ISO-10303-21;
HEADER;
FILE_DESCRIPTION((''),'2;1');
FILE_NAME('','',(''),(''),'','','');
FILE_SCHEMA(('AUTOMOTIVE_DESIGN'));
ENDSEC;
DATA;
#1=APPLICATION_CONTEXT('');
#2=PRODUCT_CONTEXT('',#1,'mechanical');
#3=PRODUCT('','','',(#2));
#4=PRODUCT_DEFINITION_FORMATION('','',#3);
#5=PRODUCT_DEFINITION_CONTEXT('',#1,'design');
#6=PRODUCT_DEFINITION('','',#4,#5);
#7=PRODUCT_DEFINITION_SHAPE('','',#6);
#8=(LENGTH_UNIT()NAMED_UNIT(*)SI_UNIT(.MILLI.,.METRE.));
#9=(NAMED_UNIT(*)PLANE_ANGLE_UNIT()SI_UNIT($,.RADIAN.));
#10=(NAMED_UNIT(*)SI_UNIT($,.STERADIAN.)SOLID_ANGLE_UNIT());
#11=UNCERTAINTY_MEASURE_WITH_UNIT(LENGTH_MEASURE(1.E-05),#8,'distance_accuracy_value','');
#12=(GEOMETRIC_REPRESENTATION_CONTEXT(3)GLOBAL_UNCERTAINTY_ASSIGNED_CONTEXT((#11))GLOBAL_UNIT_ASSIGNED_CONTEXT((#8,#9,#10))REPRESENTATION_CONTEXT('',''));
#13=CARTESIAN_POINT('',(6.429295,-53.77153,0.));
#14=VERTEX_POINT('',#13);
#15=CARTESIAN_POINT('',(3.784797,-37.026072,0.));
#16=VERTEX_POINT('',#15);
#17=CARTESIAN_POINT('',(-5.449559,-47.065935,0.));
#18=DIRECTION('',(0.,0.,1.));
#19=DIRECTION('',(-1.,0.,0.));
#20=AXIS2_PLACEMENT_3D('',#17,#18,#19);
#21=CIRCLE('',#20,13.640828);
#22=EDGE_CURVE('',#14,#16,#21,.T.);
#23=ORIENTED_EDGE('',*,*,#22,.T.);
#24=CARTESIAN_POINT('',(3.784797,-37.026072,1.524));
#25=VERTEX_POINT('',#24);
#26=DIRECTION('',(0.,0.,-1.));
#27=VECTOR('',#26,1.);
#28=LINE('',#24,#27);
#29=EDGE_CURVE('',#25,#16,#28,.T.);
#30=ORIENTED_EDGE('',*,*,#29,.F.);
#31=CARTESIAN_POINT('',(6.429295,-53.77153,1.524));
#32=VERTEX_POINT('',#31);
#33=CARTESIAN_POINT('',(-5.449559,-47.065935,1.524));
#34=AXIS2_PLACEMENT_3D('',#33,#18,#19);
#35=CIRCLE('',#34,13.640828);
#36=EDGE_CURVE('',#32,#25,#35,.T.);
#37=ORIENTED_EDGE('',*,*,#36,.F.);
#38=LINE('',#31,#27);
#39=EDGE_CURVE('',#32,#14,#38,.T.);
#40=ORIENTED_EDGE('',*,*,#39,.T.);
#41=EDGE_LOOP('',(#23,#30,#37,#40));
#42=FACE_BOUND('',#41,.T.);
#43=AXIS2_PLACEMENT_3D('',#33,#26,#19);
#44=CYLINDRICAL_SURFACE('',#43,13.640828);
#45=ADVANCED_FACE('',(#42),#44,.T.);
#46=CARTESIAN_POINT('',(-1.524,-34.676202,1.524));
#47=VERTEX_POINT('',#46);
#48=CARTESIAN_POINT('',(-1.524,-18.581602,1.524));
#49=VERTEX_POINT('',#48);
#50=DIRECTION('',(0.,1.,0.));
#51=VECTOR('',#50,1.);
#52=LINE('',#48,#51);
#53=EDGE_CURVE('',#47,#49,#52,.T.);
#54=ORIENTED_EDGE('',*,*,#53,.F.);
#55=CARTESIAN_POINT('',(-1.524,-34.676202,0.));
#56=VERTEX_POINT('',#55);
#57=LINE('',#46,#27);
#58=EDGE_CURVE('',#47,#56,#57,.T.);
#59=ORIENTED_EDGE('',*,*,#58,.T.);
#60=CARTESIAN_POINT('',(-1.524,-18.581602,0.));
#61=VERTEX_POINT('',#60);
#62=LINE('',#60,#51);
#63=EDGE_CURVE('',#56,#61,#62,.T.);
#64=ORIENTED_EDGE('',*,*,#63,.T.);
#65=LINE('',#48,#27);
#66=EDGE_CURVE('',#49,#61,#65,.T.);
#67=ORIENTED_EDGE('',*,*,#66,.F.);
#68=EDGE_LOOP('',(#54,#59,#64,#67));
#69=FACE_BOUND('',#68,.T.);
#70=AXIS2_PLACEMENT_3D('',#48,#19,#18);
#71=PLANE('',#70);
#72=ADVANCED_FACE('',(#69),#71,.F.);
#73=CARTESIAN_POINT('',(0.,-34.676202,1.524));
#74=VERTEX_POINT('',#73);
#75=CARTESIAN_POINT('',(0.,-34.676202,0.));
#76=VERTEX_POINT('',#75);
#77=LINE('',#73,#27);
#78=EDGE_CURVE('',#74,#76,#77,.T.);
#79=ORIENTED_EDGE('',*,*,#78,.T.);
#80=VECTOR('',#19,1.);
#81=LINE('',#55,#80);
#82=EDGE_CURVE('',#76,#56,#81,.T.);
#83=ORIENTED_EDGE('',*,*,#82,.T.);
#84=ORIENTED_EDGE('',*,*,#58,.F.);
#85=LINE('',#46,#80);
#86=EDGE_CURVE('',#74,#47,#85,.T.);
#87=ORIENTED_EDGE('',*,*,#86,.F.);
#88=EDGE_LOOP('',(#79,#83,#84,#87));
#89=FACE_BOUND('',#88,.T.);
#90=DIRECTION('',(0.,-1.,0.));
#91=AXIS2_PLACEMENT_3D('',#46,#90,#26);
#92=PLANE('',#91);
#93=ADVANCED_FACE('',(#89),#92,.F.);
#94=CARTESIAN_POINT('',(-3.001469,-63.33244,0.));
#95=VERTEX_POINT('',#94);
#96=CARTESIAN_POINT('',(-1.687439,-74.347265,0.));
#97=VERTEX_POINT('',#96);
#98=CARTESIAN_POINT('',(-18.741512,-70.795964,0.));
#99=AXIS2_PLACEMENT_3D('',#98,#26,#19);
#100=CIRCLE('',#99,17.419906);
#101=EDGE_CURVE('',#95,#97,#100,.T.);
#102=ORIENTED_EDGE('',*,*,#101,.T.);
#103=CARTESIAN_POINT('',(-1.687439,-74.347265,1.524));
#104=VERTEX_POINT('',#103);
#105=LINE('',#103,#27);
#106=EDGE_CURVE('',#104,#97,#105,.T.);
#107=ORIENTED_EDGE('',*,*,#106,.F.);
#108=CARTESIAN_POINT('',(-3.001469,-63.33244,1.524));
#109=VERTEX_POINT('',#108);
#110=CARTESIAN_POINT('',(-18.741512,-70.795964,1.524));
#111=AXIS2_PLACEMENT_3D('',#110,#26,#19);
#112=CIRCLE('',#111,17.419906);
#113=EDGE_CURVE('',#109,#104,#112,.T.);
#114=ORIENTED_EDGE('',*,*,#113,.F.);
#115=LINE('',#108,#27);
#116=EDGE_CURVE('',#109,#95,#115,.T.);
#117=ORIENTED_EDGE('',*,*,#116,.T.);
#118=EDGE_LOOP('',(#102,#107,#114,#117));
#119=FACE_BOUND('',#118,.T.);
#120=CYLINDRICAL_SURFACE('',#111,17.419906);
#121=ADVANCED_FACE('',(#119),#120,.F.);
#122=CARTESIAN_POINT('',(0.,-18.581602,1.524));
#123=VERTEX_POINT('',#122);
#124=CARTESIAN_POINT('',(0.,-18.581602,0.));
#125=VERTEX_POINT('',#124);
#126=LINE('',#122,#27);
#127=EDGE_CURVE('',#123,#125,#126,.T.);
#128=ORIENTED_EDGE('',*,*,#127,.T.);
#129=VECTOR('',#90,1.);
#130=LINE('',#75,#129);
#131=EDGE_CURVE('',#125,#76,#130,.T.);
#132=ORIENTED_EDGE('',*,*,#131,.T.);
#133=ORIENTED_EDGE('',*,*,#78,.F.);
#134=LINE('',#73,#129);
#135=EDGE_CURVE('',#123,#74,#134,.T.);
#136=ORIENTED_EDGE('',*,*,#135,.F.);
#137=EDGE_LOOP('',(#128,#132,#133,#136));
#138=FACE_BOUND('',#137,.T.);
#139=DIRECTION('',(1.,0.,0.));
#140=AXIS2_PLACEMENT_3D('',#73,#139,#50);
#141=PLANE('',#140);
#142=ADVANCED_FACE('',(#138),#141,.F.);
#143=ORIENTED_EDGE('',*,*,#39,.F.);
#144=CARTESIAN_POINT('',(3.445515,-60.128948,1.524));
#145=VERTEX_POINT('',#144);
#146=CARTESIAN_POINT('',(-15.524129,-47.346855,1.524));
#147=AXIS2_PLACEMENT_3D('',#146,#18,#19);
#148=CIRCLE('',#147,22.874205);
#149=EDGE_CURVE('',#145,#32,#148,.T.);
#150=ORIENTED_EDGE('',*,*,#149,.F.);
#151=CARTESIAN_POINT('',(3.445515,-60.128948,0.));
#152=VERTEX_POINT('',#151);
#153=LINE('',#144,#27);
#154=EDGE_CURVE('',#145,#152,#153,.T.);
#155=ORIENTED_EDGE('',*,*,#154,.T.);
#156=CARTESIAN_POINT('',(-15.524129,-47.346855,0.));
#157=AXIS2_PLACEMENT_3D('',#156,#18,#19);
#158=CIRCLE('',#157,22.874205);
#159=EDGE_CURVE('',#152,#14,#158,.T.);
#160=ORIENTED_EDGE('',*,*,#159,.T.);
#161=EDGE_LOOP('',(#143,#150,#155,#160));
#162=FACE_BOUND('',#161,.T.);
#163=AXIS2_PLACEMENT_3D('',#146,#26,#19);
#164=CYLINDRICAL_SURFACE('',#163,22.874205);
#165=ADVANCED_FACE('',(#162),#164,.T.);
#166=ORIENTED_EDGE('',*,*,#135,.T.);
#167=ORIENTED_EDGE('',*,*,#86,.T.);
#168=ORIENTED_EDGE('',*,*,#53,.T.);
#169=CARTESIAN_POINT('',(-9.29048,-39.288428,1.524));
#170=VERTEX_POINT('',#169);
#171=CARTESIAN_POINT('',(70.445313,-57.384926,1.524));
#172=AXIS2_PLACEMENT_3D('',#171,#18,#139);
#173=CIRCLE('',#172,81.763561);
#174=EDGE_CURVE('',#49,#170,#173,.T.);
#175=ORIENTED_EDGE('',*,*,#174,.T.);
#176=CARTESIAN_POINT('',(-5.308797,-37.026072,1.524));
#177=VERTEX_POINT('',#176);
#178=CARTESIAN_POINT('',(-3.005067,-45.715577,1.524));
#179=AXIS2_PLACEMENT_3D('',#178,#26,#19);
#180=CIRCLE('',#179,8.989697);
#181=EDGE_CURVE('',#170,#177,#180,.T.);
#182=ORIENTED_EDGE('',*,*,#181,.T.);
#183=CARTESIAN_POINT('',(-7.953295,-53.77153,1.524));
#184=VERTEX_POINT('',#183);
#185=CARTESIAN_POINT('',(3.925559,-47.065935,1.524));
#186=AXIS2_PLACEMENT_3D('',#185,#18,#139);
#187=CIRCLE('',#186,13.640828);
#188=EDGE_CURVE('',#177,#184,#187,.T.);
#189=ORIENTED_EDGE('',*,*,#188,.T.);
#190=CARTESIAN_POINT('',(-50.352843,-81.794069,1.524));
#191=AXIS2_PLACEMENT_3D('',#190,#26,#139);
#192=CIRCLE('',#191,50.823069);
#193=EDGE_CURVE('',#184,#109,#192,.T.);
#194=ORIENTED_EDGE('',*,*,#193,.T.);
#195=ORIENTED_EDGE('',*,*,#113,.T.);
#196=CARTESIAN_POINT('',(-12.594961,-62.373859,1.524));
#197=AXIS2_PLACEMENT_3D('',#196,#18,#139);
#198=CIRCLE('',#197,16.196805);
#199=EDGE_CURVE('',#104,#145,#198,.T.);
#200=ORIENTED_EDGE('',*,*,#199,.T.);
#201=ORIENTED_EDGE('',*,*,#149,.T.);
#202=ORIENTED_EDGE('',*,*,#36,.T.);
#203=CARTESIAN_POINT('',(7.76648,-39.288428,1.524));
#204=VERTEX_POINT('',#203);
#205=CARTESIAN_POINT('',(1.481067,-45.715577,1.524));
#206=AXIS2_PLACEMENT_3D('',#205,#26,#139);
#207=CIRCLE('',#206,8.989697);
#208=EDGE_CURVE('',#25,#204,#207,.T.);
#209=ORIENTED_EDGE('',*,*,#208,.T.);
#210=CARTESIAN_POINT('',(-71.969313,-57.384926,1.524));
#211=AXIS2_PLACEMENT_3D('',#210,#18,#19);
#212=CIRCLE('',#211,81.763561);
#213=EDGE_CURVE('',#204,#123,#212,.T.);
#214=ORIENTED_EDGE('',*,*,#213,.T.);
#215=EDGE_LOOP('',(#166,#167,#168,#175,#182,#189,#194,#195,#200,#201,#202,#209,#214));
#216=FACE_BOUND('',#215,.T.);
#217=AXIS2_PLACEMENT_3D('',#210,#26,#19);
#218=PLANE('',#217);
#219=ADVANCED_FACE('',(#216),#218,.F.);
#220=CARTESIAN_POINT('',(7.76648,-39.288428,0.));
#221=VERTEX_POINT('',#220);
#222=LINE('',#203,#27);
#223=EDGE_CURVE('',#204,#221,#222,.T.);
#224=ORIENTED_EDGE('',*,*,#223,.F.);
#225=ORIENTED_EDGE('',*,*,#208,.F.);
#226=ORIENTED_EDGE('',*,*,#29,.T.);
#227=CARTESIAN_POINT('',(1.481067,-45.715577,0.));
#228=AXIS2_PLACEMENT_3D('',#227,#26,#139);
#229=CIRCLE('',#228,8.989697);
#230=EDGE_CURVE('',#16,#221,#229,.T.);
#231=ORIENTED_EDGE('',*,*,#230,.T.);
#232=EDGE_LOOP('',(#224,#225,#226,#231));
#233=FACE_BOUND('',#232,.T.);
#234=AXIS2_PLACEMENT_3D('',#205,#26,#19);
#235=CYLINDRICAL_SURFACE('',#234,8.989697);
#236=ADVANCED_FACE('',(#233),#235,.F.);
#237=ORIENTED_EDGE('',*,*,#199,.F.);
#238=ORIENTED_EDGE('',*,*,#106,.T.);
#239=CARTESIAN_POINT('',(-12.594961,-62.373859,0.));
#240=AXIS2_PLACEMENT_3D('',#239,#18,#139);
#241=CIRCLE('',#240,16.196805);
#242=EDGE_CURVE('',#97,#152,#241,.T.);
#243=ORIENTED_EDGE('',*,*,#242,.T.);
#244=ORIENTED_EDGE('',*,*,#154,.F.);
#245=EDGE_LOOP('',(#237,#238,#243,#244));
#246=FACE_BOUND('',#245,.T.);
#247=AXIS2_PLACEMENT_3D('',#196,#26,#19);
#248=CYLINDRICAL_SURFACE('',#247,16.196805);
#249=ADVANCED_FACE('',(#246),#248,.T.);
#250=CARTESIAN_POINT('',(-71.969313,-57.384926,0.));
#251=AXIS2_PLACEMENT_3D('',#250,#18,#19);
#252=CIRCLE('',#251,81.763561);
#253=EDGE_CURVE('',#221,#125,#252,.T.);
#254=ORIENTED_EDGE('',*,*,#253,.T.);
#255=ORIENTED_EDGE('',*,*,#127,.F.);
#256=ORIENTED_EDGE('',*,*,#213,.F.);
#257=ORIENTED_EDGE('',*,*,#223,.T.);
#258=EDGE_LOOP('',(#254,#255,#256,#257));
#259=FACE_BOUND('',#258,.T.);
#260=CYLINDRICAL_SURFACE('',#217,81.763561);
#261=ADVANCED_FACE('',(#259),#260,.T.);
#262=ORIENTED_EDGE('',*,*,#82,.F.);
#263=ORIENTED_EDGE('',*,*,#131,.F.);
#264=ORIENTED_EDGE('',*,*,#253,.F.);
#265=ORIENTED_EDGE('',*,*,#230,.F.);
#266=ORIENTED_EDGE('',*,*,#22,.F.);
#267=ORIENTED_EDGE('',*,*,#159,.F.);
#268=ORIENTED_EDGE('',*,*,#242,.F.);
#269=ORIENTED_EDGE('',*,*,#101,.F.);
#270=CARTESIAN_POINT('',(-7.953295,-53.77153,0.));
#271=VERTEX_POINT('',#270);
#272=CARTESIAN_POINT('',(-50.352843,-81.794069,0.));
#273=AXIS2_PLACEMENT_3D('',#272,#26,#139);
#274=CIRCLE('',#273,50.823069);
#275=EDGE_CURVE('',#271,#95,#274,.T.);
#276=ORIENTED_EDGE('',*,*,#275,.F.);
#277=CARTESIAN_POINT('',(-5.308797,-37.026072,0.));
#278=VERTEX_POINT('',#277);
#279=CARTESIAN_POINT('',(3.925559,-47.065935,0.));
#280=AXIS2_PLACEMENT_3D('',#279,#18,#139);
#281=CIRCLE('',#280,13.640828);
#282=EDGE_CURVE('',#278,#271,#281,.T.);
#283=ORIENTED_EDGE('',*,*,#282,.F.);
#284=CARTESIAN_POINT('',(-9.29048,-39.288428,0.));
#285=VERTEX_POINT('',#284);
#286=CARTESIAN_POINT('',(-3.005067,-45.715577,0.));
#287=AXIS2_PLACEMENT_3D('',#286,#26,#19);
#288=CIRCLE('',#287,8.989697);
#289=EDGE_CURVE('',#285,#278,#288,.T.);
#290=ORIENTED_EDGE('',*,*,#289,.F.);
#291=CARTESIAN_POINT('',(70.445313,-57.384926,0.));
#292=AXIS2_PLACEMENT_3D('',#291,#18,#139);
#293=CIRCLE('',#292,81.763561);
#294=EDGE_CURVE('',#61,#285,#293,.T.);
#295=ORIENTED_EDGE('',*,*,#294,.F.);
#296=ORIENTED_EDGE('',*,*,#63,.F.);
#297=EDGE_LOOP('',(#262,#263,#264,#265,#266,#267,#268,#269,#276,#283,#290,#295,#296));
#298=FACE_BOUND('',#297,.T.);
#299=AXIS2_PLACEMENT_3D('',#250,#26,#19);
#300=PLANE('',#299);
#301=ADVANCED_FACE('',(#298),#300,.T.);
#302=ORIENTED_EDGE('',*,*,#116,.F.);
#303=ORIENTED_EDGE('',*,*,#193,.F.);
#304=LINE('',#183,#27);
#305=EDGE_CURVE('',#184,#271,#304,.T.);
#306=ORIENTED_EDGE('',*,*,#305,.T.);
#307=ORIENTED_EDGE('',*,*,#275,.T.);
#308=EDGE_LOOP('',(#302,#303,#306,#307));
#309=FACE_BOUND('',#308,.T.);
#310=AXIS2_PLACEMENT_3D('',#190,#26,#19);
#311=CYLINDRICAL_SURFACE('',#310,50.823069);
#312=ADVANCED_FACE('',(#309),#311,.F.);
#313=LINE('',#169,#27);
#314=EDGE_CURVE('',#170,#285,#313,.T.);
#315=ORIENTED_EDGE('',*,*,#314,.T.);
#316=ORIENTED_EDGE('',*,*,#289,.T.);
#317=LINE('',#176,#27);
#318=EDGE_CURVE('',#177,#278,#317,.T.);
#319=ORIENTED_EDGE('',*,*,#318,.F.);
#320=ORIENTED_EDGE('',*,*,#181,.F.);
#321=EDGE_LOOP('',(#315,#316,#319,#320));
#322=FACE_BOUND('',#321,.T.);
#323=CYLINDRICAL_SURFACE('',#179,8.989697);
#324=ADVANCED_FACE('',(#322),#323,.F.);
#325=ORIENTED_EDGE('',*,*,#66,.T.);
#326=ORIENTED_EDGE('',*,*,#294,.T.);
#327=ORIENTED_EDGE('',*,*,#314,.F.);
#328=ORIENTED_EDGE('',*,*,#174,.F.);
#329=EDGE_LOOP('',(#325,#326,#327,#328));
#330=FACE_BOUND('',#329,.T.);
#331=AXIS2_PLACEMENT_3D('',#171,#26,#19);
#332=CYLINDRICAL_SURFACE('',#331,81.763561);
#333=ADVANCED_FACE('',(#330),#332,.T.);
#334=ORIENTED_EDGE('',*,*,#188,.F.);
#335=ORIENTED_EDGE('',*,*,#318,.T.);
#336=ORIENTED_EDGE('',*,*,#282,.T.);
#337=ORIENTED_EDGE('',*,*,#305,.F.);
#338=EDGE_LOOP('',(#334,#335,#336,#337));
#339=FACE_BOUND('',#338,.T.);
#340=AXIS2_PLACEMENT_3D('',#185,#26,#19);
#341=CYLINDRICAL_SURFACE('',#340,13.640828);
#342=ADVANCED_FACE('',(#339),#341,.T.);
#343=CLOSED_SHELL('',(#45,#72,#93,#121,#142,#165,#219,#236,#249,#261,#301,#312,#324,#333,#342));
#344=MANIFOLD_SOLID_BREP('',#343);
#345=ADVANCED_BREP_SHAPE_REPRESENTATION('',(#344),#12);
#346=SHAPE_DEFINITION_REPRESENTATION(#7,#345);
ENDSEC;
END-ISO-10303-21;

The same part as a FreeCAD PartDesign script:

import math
import FreeCAD as App
import Part
import Sketcher
from FreeCAD import Vector
Q = App.Units.Quantity

doc = App.newDocument("Part")
body = doc.addObject("PartDesign::Body", "Body")

sketch1 = body.newObject("Sketcher::SketchObject", "Sketch")
sketch1.AttachmentSupport = (doc.getObject("XY_Plane"), [""])
sketch1.MapMode = "FlatFace"
sketch1.addGeometry(Part.LineSegment(Vector(0, -34.7, 0), Vector(-1.5, -34.7, 0)), False)
sketch1.addGeometry(Part.LineSegment(Vector(-1.5, -34.7, 0), Vector(-1.5, -18.6, 0)), False)
sketch1.addGeometry(Part.ArcOfCircle(Part.Circle(Vector(70.4, -57.4, 0), Vector(0, 0, 1), 81.8), math.radians(151.67), math.radians(167.21)), False)
sketch1.addGeometry(Part.ArcOfCircle(Part.Circle(Vector(-3, -45.7, 0), Vector(0, 0, 1), 9), math.radians(105), math.radians(134)), False)
sketch1.addGeometry(Part.ArcOfCircle(Part.Circle(Vector(3.9, -47.1, 0), Vector(0, 0, 1), 13.6), math.radians(133), math.radians(209)), False)
sketch1.addGeometry(Part.ArcOfCircle(Part.Circle(Vector(-50.4, -81.8, 0), Vector(0, 0, 1), 50.8), math.radians(21.3), math.radians(33.46)), False)
sketch1.addGeometry(Part.ArcOfCircle(Part.Circle(Vector(-18.7, -70.8, 0), Vector(0, 0, 1), 17.4), math.radians(-12), math.radians(25)), False)
sketch1.addGeometry(Part.ArcOfCircle(Part.Circle(Vector(-12.6, -62.4, 0), Vector(0, 0, 1), 16.2), math.radians(-48), math.radians(8)), False)
sketch1.addGeometry(Part.ArcOfCircle(Part.Circle(Vector(-15.5, -47.3, 0), Vector(0, 0, 1), 22.9), math.radians(-33.97), math.radians(-16.31)), False)
sketch1.addGeometry(Part.ArcOfCircle(Part.Circle(Vector(-5.4, -47.1, 0), Vector(0, 0, 1), 13.6), math.radians(-29), math.radians(47)), False)
sketch1.addGeometry(Part.ArcOfCircle(Part.Circle(Vector(1.5, -45.7, 0), Vector(0, 0, 1), 9), math.radians(46), math.radians(75)), False)
sketch1.addGeometry(Part.ArcOfCircle(Part.Circle(Vector(-72, -57.4, 0), Vector(0, 0, 1), 81.8), math.radians(12.79), math.radians(28.33)), False)
sketch1.addGeometry(Part.LineSegment(Vector(0, -18.6, 0), Vector(0, -34.7, 0)), False)
sketch1.addConstraint(Sketcher.Constraint("Coincident", 0, 2, 1, 1))
sketch1.addConstraint(Sketcher.Constraint("Coincident", 1, 2, 2, 1))
sketch1.addConstraint(Sketcher.Constraint("Coincident", 2, 2, 3, 2))
sketch1.addConstraint(Sketcher.Constraint("Coincident", 3, 1, 4, 1))
sketch1.addConstraint(Sketcher.Constraint("Coincident", 4, 2, 5, 2))
sketch1.addConstraint(Sketcher.Constraint("Coincident", 5, 1, 6, 2))
sketch1.addConstraint(Sketcher.Constraint("Coincident", 6, 1, 7, 1))
sketch1.addConstraint(Sketcher.Constraint("Coincident", 7, 2, 8, 1))
sketch1.addConstraint(Sketcher.Constraint("Coincident", 8, 2, 9, 1))
sketch1.addConstraint(Sketcher.Constraint("Coincident", 9, 2, 10, 2))
sketch1.addConstraint(Sketcher.Constraint("Coincident", 10, 1, 11, 1))
sketch1.addConstraint(Sketcher.Constraint("Coincident", 11, 2, 12, 1))
sketch1.addConstraint(Sketcher.Constraint("Coincident", 12, 2, 0, 1))
sketch1.addConstraint(Sketcher.Constraint("Horizontal", 0))
sketch1.addConstraint(Sketcher.Constraint("Vertical", 1))
sketch1.addConstraint(Sketcher.Constraint("Vertical", 12))
sketch1.addConstraint(Sketcher.Constraint("Equal", 4, 9))
sketch1.addConstraint(Sketcher.Constraint("Equal", 3, 10))
sketch1.addConstraint(Sketcher.Constraint("Equal", 2, 11))
sketch1.addConstraint(Sketcher.Constraint("PointOnObject", 11, 2, -2))
sketch1.addConstraint(Sketcher.Constraint("Horizontal", 4, 3, 9, 3))
sketch1.addConstraint(Sketcher.Constraint("Horizontal", 3, 3, 10, 3))
sketch1.addConstraint(Sketcher.Constraint("Horizontal", 2, 3, 11, 3))
sketch1.addConstraint(Sketcher.Constraint("Horizontal", 4, 2, 8, 2))
sketch1.addConstraint(Sketcher.Constraint("Horizontal", 3, 1, 9, 2))
sketch1.addConstraint(Sketcher.Constraint("Horizontal", 2, 2, 10, 1))
sketch1.addConstraint(Sketcher.Constraint("Horizontal", 1, 2, 11, 2))
sketch1.addConstraint(Sketcher.Constraint("DistanceX", 0, 2, 0, 1, Q("0.06 in")))
sketch1.addConstraint(Sketcher.Constraint("Radius", 2, 81.763561))
sketch1.addConstraint(Sketcher.Constraint("Radius", 5, 50.823069))
sketch1.addConstraint(Sketcher.Constraint("DistanceY", 1, 1, 1, 2, 16.0946))
sketch1.addConstraint(Sketcher.Constraint("Radius", 3, 8.989697))
sketch1.addConstraint(Sketcher.Constraint("Radius", 4, 13.640828))
sketch1.addConstraint(Sketcher.Constraint("Radius", 6, 17.419906))
sketch1.addConstraint(Sketcher.Constraint("Radius", 7, 16.196805))
sketch1.addConstraint(Sketcher.Constraint("Radius", 8, 22.874205))
sketch1.addConstraint(Sketcher.Constraint("DistanceY", 0, 2, -1, 1, 34.676202))
sketch1.addConstraint(Sketcher.Constraint("DistanceX", 7, 3, 9, 3, 7.145402))
sketch1.addConstraint(Sketcher.Constraint("DistanceX", 11, 3, 6, 3, 53.227801))
sketch1.addConstraint(Sketcher.Constraint("DistanceY", 6, 1, 6, 3, 3.551301))
sketch1.addConstraint(Sketcher.Constraint("DistanceX", -1, 1, 4, 3, 3.925559))
sketch1.addConstraint(Sketcher.Constraint("DistanceY", 5, 3, -1, 1, 81.794069))
sketch1.addConstraint(Sketcher.Constraint("DistanceX", 6, 3, -1, 1, 18.741512))
sketch1.addConstraint(Sketcher.Constraint("DistanceY", 7, 3, -1, 1, 62.373859))
sketch1.addConstraint(Sketcher.Constraint("DistanceX", 8, 3, -1, 1, 15.524129))
sketch1.addConstraint(Sketcher.Constraint("DistanceX", 2, 2, -1, 1, 9.29048))
sketch1.addConstraint(Sketcher.Constraint("DistanceY", 4, 2, -1, 1, 53.77153))
sketch1.addConstraint(Sketcher.Constraint("DistanceX", 5, 1, -1, 1, 3.001469))
sketch1.addConstraint(Sketcher.Constraint("DistanceX", 3, 3, 2, 3, 73.450379))
pad1 = body.newObject("PartDesign::Pad", "Pad")
pad1.Profile = sketch1
pad1.Length = Q("0.06 in")

doc.recompute()
